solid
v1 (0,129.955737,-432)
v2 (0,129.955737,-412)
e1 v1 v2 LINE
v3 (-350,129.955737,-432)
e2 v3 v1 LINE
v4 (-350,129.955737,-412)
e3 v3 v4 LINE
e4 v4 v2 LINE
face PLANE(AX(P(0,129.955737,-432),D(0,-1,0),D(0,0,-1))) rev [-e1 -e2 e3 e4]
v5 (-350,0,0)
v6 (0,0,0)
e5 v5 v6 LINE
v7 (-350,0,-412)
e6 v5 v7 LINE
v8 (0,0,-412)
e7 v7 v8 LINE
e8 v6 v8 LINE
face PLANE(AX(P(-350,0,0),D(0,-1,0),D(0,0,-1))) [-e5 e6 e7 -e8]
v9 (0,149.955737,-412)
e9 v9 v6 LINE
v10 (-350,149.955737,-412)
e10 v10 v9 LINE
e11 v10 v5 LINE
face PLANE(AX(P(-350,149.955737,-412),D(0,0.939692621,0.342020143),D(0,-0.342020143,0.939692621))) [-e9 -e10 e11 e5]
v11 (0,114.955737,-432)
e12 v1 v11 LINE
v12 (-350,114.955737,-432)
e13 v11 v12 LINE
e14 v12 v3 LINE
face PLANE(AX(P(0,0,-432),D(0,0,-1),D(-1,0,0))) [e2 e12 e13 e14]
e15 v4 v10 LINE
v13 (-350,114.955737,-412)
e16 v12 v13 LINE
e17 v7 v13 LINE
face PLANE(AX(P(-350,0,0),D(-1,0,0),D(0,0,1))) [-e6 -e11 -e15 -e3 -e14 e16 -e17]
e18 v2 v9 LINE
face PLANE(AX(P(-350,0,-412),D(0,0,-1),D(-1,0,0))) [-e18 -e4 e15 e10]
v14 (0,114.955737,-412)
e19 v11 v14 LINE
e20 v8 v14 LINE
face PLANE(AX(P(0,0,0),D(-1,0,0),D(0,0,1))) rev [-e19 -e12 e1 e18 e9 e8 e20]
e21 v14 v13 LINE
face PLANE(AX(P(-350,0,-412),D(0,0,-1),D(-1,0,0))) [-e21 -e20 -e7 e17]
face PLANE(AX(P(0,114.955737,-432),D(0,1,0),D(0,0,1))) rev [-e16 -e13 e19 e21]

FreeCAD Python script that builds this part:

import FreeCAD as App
import Part
import Sketcher
from FreeCAD import Vector
Q = App.Units.Quantity


def add_polygon(sketch, points):
    """Adds a closed chain of lines whose ends are joined by coincident constraints."""
    first, n = sketch.GeometryCount, len(points)
    for a, b in zip(points, points[1:] + points[:1]):
        sketch.addGeometry(Part.LineSegment(App.Vector(*a, 0), App.Vector(*b, 0)), False)
    for i in range(n):
        sketch.addConstraint(Sketcher.Constraint("Coincident", first + i, 2, first + (i + 1) % n, 1))

doc = App.newDocument("Part")
body = doc.addObject("PartDesign::Body", "Body")

sketch1 = body.newObject("Sketcher::SketchObject", "Sketch")
sketch1.AttachmentSupport = (doc.getObject("YZ_Plane"), [""])
sketch1.MapMode = "FlatFace"
add_polygon(sketch1, [(0, 0), (0, -412), (149.955737, -412)])
sketch1.addConstraint([
    Sketcher.Constraint("Vertical", 0),
    Sketcher.Constraint("Horizontal", 1),
    Sketcher.Constraint("Coincident", 2, 2, -1, 1),
    Sketcher.Constraint("DistanceY", 0, 2, 0, 1, Q("412 mm")),
    Sketcher.Constraint("Angle", 2, Q("110 deg")),
])
pad1 = body.newObject("PartDesign::Pad", "Pad")
pad1.Profile = sketch1
pad1.Length = 350
pad1.Reversed = True

sketch2 = body.newObject("Sketcher::SketchObject", "Sketch001")
sketch2.AttachmentSupport = (doc.getObject("XY_Plane"), [""])
sketch2.MapMode = "FlatFace"
sketch2.AttachmentOffset = App.Placement(Vector(0, 0, -412), App.Rotation())
add_polygon(sketch2, [(0, 129.955737), (0, 114.955737), (-350, 114.955737), (-350, 129.955737)])
sketch2.addConstraint([
    Sketcher.Constraint("Vertical", 0),
    Sketcher.Constraint("Horizontal", 1),
    Sketcher.Constraint("Vertical", 2),
    Sketcher.Constraint("Horizontal", 3),
    Sketcher.Constraint("PointOnObject", 0, 2, -2),
    Sketcher.Constraint("DistanceX", 1, 2, 1, 1, Q("350 mm")),
    Sketcher.Constraint("DistanceY", 0, 2, 0, 1, Q("15 mm")),
    Sketcher.Constraint("DistanceY", -1, 1, 0, 2, Q("114.955737 mm")),
])
pad2 = body.newObject("PartDesign::Pad", "Pad001")
pad2.Profile = sketch2
pad2.Length = 20
pad2.Reversed = True

doc.recompute()
